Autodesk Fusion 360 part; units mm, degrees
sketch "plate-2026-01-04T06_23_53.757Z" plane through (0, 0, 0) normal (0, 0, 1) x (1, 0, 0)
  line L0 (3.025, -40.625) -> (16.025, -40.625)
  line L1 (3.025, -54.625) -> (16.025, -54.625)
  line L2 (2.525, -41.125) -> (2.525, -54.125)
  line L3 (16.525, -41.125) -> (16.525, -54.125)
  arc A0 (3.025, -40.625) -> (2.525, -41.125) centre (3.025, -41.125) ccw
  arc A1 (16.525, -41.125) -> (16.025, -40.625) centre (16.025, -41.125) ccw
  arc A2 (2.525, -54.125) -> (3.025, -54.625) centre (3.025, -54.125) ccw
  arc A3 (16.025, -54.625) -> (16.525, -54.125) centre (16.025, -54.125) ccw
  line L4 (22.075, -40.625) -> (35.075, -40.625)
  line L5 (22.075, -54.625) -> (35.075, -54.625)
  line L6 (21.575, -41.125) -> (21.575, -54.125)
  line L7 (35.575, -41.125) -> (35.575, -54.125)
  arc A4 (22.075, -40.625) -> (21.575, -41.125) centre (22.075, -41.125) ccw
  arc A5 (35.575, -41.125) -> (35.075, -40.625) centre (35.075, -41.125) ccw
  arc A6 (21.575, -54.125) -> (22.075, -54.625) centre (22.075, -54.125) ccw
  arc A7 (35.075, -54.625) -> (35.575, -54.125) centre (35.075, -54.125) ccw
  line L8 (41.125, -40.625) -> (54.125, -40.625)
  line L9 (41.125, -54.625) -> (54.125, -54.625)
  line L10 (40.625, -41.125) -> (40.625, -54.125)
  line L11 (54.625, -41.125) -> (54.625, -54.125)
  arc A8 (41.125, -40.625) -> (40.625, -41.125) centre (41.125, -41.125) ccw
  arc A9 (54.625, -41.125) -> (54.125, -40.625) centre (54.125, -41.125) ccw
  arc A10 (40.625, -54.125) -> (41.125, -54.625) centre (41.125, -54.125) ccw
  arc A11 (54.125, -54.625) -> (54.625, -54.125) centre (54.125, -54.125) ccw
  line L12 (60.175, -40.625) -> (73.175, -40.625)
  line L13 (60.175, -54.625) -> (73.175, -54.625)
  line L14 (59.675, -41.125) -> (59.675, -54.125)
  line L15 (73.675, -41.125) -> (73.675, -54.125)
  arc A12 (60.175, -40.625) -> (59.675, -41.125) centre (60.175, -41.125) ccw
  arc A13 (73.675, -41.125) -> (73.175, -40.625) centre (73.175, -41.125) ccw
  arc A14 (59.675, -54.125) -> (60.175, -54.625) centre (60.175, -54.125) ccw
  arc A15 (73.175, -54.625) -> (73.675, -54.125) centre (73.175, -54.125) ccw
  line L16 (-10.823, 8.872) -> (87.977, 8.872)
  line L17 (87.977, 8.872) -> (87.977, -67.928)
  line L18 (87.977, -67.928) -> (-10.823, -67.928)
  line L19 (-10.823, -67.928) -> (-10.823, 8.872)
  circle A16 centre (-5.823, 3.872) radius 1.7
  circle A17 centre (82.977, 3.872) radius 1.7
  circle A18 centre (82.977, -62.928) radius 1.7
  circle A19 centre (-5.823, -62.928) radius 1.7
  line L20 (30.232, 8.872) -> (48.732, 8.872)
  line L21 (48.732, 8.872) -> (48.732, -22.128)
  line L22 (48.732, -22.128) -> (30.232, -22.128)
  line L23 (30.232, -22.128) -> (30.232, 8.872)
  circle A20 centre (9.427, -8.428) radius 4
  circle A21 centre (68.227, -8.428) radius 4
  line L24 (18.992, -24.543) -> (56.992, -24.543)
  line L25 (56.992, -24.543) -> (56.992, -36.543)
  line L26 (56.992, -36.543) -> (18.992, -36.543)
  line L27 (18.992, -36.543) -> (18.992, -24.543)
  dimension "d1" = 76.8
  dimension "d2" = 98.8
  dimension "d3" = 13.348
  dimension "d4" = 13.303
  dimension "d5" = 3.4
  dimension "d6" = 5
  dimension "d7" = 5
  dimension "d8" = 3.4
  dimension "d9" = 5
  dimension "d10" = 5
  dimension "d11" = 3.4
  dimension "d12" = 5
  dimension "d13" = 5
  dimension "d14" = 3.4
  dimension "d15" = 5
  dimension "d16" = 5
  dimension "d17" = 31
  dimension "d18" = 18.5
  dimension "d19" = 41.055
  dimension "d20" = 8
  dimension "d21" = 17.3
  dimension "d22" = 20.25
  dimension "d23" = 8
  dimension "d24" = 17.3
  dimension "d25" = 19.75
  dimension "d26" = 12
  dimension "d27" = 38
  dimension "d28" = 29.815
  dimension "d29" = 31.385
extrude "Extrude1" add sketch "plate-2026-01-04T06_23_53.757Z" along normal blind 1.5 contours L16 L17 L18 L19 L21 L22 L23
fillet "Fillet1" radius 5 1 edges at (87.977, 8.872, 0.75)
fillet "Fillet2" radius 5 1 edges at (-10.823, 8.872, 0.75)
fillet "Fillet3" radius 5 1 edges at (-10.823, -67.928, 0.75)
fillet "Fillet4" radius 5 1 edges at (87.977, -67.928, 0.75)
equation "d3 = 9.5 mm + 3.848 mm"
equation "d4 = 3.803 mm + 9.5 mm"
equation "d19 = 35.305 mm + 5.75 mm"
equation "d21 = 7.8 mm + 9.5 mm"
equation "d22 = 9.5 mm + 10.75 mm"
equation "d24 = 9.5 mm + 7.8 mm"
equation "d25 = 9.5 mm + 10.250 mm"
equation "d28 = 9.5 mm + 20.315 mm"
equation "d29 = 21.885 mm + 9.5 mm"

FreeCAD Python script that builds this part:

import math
import FreeCAD as App
import Part
import Sketcher
from FreeCAD import Vector
Q = App.Units.Quantity


def edges_at(feature, points):
    """Names of the edges that pass closest to the given points."""
    edges = feature.Shape.Edges
    near = lambda p: min(range(len(edges)), key=lambda i: edges[i].distToShape(Part.Vertex(*p))[0])
    return sorted({f"Edge{near(p) + 1}" for p in points})


def add_polygon(sketch, points):
    """Adds a closed chain of lines whose ends are joined by coincident constraints."""
    first, n = sketch.GeometryCount, len(points)
    for a, b in zip(points, points[1:] + points[:1]):
        sketch.addGeometry(Part.LineSegment(App.Vector(*a, 0), App.Vector(*b, 0)), False)
    for i in range(n):
        sketch.addConstraint(Sketcher.Constraint("Coincident", first + i, 2, first + (i + 1) % n, 1))

doc = App.newDocument("Part")
body = doc.addObject("PartDesign::Body", "Body")

sketch1 = doc.addObject("Sketcher::SketchObject", "Sketch")
body.addObject(sketch1)
sketch1.AttachmentSupport = (doc.XY_Plane, [""])
sketch1.MapMode = "FlatFace"
add_polygon(sketch1, [(30.232, 8.872), (-10.823, 8.872), (-10.823, -67.928), (87.977, -67.928), (87.977, 8.872), (48.732, 8.872), (48.732, -22.128), (30.232, -22.128)])
sketch1.addGeometry(Part.Circle(Vector(-5.823, -62.928, 0), Vector(0, 0, 1), 1.7), False)
sketch1.addGeometry(Part.ArcOfCircle(Part.Circle(Vector(3.025, -41.125, 0), Vector(0, 0, 1), 0.5), math.radians(90), math.radians(180)), False)
sketch1.addGeometry(Part.LineSegment(Vector(3.025, -40.625, 0), Vector(16.025, -40.625, 0)), False)
sketch1.addGeometry(Part.ArcOfCircle(Part.Circle(Vector(16.025, -41.125, 0), Vector(0, 0, 1), 0.5), math.radians(0), math.radians(90)), False)
sketch1.addGeometry(Part.LineSegment(Vector(16.525, -41.125, 0), Vector(16.525, -54.125, 0)), False)
sketch1.addGeometry(Part.ArcOfCircle(Part.Circle(Vector(16.025, -54.125, 0), Vector(0, 0, 1), 0.5), math.radians(-90), math.radians(0)), False)
sketch1.addGeometry(Part.LineSegment(Vector(16.025, -54.625, 0), Vector(3.025, -54.625, 0)), False)
sketch1.addGeometry(Part.ArcOfCircle(Part.Circle(Vector(3.025, -54.125, 0), Vector(0, 0, 1), 0.5), math.radians(180), math.radians(270)), False)
sketch1.addGeometry(Part.LineSegment(Vector(2.525, -54.125, 0), Vector(2.525, -41.125, 0)), False)
sketch1.addGeometry(Part.ArcOfCircle(Part.Circle(Vector(22.075, -41.125, 0), Vector(0, 0, 1), 0.5), math.radians(90), math.radians(180)), False)
sketch1.addGeometry(Part.LineSegment(Vector(22.075, -40.625, 0), Vector(35.075, -40.625, 0)), False)
sketch1.addGeometry(Part.ArcOfCircle(Part.Circle(Vector(35.075, -41.125, 0), Vector(0, 0, 1), 0.5), math.radians(0), math.radians(90)), False)
sketch1.addGeometry(Part.LineSegment(Vector(35.575, -41.125, 0), Vector(35.575, -54.125, 0)), False)
sketch1.addGeometry(Part.ArcOfCircle(Part.Circle(Vector(35.075, -54.125, 0), Vector(0, 0, 1), 0.5), math.radians(-90), math.radians(0)), False)
sketch1.addGeometry(Part.LineSegment(Vector(35.075, -54.625, 0), Vector(22.075, -54.625, 0)), False)
sketch1.addGeometry(Part.ArcOfCircle(Part.Circle(Vector(22.075, -54.125, 0), Vector(0, 0, 1), 0.5), math.radians(180), math.radians(270)), False)
sketch1.addGeometry(Part.LineSegment(Vector(21.575, -54.125, 0), Vector(21.575, -41.125, 0)), False)
add_polygon(sketch1, [(18.992, -36.543), (18.992, -24.543), (56.992, -24.543), (56.992, -36.543)])
sketch1.addGeometry(Part.Circle(Vector(82.977, -62.928, 0), Vector(0, 0, 1), 1.7), False)
sketch1.addGeometry(Part.ArcOfCircle(Part.Circle(Vector(41.125, -41.125, 0), Vector(0, 0, 1), 0.5), math.radians(90), math.radians(180)), False)
sketch1.addGeometry(Part.LineSegment(Vector(41.125, -40.625, 0), Vector(54.125, -40.625, 0)), False)
sketch1.addGeometry(Part.ArcOfCircle(Part.Circle(Vector(54.125, -41.125, 0), Vector(0, 0, 1), 0.5), math.radians(0), math.radians(90)), False)
sketch1.addGeometry(Part.LineSegment(Vector(54.625, -41.125, 0), Vector(54.625, -54.125, 0)), False)
sketch1.addGeometry(Part.ArcOfCircle(Part.Circle(Vector(54.125, -54.125, 0), Vector(0, 0, 1), 0.5), math.radians(-90), math.radians(0)), False)
sketch1.addGeometry(Part.LineSegment(Vector(54.125, -54.625, 0), Vector(41.125, -54.625, 0)), False)
sketch1.addGeometry(Part.ArcOfCircle(Part.Circle(Vector(41.125, -54.125, 0), Vector(0, 0, 1), 0.5), math.radians(180), math.radians(270)), False)
sketch1.addGeometry(Part.LineSegment(Vector(40.625, -54.125, 0), Vector(40.625, -41.125, 0)), False)
sketch1.addGeometry(Part.ArcOfCircle(Part.Circle(Vector(60.175, -41.125, 0), Vector(0, 0, 1), 0.5), math.radians(90), math.radians(180)), False)
sketch1.addGeometry(Part.LineSegment(Vector(60.175, -40.625, 0), Vector(73.175, -40.625, 0)), False)
sketch1.addGeometry(Part.ArcOfCircle(Part.Circle(Vector(73.175, -41.125, 0), Vector(0, 0, 1), 0.5), math.radians(0), math.radians(90)), False)
sketch1.addGeometry(Part.LineSegment(Vector(73.675, -41.125, 0), Vector(73.675, -54.125, 0)), False)
sketch1.addGeometry(Part.ArcOfCircle(Part.Circle(Vector(73.175, -54.125, 0), Vector(0, 0, 1), 0.5), math.radians(-90), math.radians(0)), False)
sketch1.addGeometry(Part.LineSegment(Vector(73.175, -54.625, 0), Vector(60.175, -54.625, 0)), False)
sketch1.addGeometry(Part.ArcOfCircle(Part.Circle(Vector(60.175, -54.125, 0), Vector(0, 0, 1), 0.5), math.radians(180), math.radians(270)), False)
sketch1.addGeometry(Part.LineSegment(Vector(59.675, -54.125, 0), Vector(59.675, -41.125, 0)), False)
sketch1.addGeometry(Part.Circle(Vector(9.427, -8.428, 0), Vector(0, 0, 1), 4), False)
sketch1.addGeometry(Part.Circle(Vector(-5.823, 3.872, 0), Vector(0, 0, 1), 1.7), False)
sketch1.addGeometry(Part.Circle(Vector(68.227, -8.428, 0), Vector(0, 0, 1), 4), False)
sketch1.addGeometry(Part.Circle(Vector(82.977, 3.872, 0), Vector(0, 0, 1), 1.7), False)
sketch1.addConstraint([
    Sketcher.Constraint("Tangent", 9, 1, 10, 1),
    Sketcher.Constraint("Tangent", 10, 2, 11, 2),
    Sketcher.Constraint("Tangent", 11, 1, 12, 1),
    Sketcher.Constraint("Tangent", 12, 2, 13, 2),
    Sketcher.Constraint("Tangent", 13, 1, 14, 1),
    Sketcher.Constraint("Tangent", 14, 2, 15, 2),
    Sketcher.Constraint("Tangent", 15, 1, 16, 1),
    Sketcher.Constraint("Tangent", 16, 2, 9, 2),
    Sketcher.Constraint("Tangent", 17, 1, 18, 1),
    Sketcher.Constraint("Tangent", 18, 2, 19, 2),
    Sketcher.Constraint("Tangent", 19, 1, 20, 1),
    Sketcher.Constraint("Tangent", 20, 2, 21, 2),
    Sketcher.Constraint("Tangent", 21, 1, 22, 1),
    Sketcher.Constraint("Tangent", 22, 2, 23, 2),
    Sketcher.Constraint("Tangent", 23, 1, 24, 1),
    Sketcher.Constraint("Tangent", 24, 2, 17, 2),
    Sketcher.Constraint("Tangent", 30, 1, 31, 1),
    Sketcher.Constraint("Tangent", 31, 2, 32, 2),
    Sketcher.Constraint("Tangent", 32, 1, 33, 1),
    Sketcher.Constraint("Tangent", 33, 2, 34, 2),
    Sketcher.Constraint("Tangent", 34, 1, 35, 1),
    Sketcher.Constraint("Tangent", 35, 2, 36, 2),
    Sketcher.Constraint("Tangent", 36, 1, 37, 1),
    Sketcher.Constraint("Tangent", 37, 2, 30, 2),
    Sketcher.Constraint("Tangent", 38, 1, 39, 1),
    Sketcher.Constraint("Tangent", 39, 2, 40, 2),
    Sketcher.Constraint("Tangent", 40, 1, 41, 1),
    Sketcher.Constraint("Tangent", 41, 2, 42, 2),
    Sketcher.Constraint("Tangent", 42, 1, 43, 1),
    Sketcher.Constraint("Tangent", 43, 2, 44, 2),
    Sketcher.Constraint("Tangent", 44, 1, 45, 1),
    Sketcher.Constraint("Tangent", 45, 2, 38, 2),
    Sketcher.Constraint("Horizontal", 0),
    Sketcher.Constraint("Vertical", 1),
    Sketcher.Constraint("Horizontal", 2),
    Sketcher.Constraint("Vertical", 3),
    Sketcher.Constraint("Horizontal", 4),
    Sketcher.Constraint("Vertical", 5),
    Sketcher.Constraint("Horizontal", 6),
    Sketcher.Constraint("Vertical", 7),
    Sketcher.Constraint("Horizontal", 10),
    Sketcher.Constraint("Vertical", 12),
    Sketcher.Constraint("Horizontal", 14),
    Sketcher.Constraint("Vertical", 16),
    Sketcher.Constraint("Horizontal", 18),
    Sketcher.Constraint("Vertical", 20),
    Sketcher.Constraint("Horizontal", 22),
    Sketcher.Constraint("Vertical", 24),
    Sketcher.Constraint("Vertical", 25),
    Sketcher.Constraint("Horizontal", 26),
    Sketcher.Constraint("Vertical", 27),
    Sketcher.Constraint("Horizontal", 28),
    Sketcher.Constraint("Horizontal", 31),
    Sketcher.Constraint("Vertical", 33),
    Sketcher.Constraint("Horizontal", 35),
    Sketcher.Constraint("Vertical", 37),
    Sketcher.Constraint("Horizontal", 39),
    Sketcher.Constraint("Vertical", 41),
    Sketcher.Constraint("Horizontal", 43),
    Sketcher.Constraint("Vertical", 45),
    Sketcher.Constraint("Equal", 9, 11),
    Sketcher.Constraint("Equal", 11, 13),
    Sketcher.Constraint("Equal", 13, 15),
    Sketcher.Constraint("Equal", 15, 17),
    Sketcher.Constraint("Equal", 17, 19),
    Sketcher.Constraint("Equal", 19, 21),
    Sketcher.Constraint("Equal", 21, 23),
    Sketcher.Constraint("Equal", 8, 29),
    Sketcher.Constraint("Equal", 23, 30),
    Sketcher.Constraint("Equal", 30, 32),
    Sketcher.Constraint("Equal", 32, 34),
    Sketcher.Constraint("Equal", 34, 36),
    Sketcher.Constraint("Equal", 36, 38),
    Sketcher.Constraint("Equal", 38, 40),
    Sketcher.Constraint("Equal", 40, 42),
    Sketcher.Constraint("Equal", 42, 44),
    Sketcher.Constraint("Equal", 29, 47),
    Sketcher.Constraint("Equal", 46, 48),
    Sketcher.Constraint("Equal", 47, 49),
    Sketcher.Constraint("Horizontal", 11, 3, 17, 3),
    Sketcher.Constraint("Horizontal", 15, 3, 21, 3),
    Sketcher.Constraint("Horizontal", 8, 3, 29, 3),
    Sketcher.Constraint("Horizontal", 19, 3, 30, 3),
    Sketcher.Constraint("Horizontal", 23, 3, 34, 3),
    Sketcher.Constraint("Horizontal", 32, 3, 38, 3),
    Sketcher.Constraint("Horizontal", 36, 3, 42, 3),
    Sketcher.Constraint("Horizontal", 46, 3, 48, 3),
    Sketcher.Constraint("Horizontal", 47, 3, 49, 3),
    Sketcher.Constraint("Horizontal", 0, 2, 3, 2),
    Sketcher.Constraint("Vertical", 8, 3, 47, 3),
    Sketcher.Constraint("Vertical", 29, 3, 49, 3),
    Sketcher.Constraint("Equal", 14, 18),
    Sketcher.Constraint("Equal", 22, 31),
    Sketcher.Constraint("Equal", 35, 39),
    Sketcher.Constraint("Equal", 43, 12),
    Sketcher.Constraint("Diameter", 46, Q("8 mm")),
    Sketcher.Constraint("Diameter", 8, Q("3.4 mm")),
    Sketcher.Constraint("DistanceX", 26, 1, 26, 2, Q("38 mm")),
    Sketcher.Constraint("DistanceY", 5, 2, 5, 1, Q("31 mm")),
    Sketcher.Constraint("DistanceY", 25, 1, 25, 2, Q("12 mm")),
    Sketcher.Constraint("DistanceX", 2, 1, 2, 2, Q("98.8 mm")),
    Sketcher.Constraint("DistanceX", 6, 2, 6, 1, Q("18.5 mm")),
    Sketcher.Constraint("DistanceY", 1, 2, 1, 1, Q("76.8 mm")),
    Sketcher.Constraint("Radius", 9, Q("0.5 mm")),
    Sketcher.Constraint("DistanceX", 0, 2, 0, 1, Q("41.055 mm")),
    Sketcher.Constraint("DistanceX", 10, 1, 10, 2, Q("13 mm")),
    Sketcher.Constraint("DistanceX", 8, 3, -1, 1, Q("5.823 mm")),
    Sketcher.Constraint("DistanceY", 8, 3, -1, 1, Q("62.928 mm")),
    Sketcher.Constraint("DistanceX", -1, 1, 9, 3, Q("3.025 mm")),
    Sketcher.Constraint("DistanceY", 9, 3, -1, 1, Q("41.125 mm")),
    Sketcher.Constraint("DistanceX", -1, 1, 17, 3, Q("22.075 mm")),
    Sketcher.Constraint("DistanceX", -1, 1, 29, 3, Q("82.977 mm")),
    Sketcher.Constraint("DistanceX", -1, 1, 30, 3, Q("41.125 mm")),
    Sketcher.Constraint("DistanceX", -1, 1, 38, 3, Q("60.175 mm")),
    Sketcher.Constraint("DistanceX", -1, 1, 46, 3, Q("9.427 mm")),
    Sketcher.Constraint("DistanceY", 46, 3, -1, 1, Q("8.428 mm")),
    Sketcher.Constraint("DistanceY", -1, 1, 47, 3, Q("3.872 mm")),
    Sketcher.Constraint("DistanceX", -1, 1, 48, 3, Q("68.227 mm")),
    Sketcher.Constraint("DistanceX", 0, 2, -1, 1, Q("10.823 mm")),
    Sketcher.Constraint("DistanceY", -1, 1, 0, 2, Q("8.872 mm")),
    Sketcher.Constraint("DistanceX", -1, 1, 25, 2, Q("18.992 mm")),
    Sketcher.Constraint("DistanceY", 25, 2, -1, 1, Q("24.543 mm")),
])
pad1 = doc.addObject("PartDesign::Pad", "Pad")
body.addObject(pad1)
pad1.Profile = sketch1
pad1.Length = 1.5
doc.recompute()

fillet = doc.addObject("PartDesign::Fillet", "Fillet")
body.addObject(fillet)
fillet.Base = (pad1, edges_at(pad1, [(87.977, 8.872, 0.75)]))
fillet.Radius = 5
doc.recompute()

fillet2 = doc.addObject("PartDesign::Fillet", "Fillet001")
body.addObject(fillet2)
fillet2.Base = (fillet, edges_at(fillet, [(-10.823, 8.872, 0.75)]))
fillet2.Radius = 5
doc.recompute()

fillet3 = doc.addObject("PartDesign::Fillet", "Fillet002")
body.addObject(fillet3)
fillet3.Base = (fillet2, edges_at(fillet2, [(-10.823, -67.928, 0.75)]))
fillet3.Radius = 5
doc.recompute()

fillet4 = doc.addObject("PartDesign::Fillet", "Fillet003")
body.addObject(fillet4)
fillet4.Base = (fillet3, edges_at(fillet3, [(87.977, -67.928, 0.75)]))
fillet4.Radius = 5

doc.recompute()
